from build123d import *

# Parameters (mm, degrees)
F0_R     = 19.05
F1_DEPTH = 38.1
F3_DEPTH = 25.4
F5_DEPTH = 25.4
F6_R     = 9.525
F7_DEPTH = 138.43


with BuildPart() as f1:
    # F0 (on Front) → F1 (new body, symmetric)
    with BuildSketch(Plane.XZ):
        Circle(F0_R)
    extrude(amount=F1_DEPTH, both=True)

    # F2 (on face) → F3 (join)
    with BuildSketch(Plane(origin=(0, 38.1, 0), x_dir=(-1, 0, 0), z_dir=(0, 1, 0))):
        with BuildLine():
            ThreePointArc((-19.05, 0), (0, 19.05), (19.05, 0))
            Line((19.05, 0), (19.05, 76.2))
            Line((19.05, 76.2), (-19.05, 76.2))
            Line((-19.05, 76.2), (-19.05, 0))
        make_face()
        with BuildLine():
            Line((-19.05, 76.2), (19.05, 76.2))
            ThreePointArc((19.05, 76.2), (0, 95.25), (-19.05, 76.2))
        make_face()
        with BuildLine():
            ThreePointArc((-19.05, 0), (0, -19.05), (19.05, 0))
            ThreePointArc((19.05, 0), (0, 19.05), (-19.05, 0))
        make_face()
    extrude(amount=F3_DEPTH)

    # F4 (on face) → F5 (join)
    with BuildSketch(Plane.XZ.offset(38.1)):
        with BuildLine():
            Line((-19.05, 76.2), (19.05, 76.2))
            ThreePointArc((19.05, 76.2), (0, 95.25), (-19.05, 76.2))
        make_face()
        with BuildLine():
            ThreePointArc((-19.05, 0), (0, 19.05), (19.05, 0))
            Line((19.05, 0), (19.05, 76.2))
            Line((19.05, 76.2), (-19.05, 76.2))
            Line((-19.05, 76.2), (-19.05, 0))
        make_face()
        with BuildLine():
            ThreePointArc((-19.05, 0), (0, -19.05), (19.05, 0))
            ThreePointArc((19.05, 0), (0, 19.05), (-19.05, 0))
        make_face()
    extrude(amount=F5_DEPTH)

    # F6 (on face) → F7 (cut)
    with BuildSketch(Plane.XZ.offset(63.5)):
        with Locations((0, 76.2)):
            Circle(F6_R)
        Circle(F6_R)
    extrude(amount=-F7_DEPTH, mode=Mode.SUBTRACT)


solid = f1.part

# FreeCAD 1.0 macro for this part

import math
import FreeCAD as App
import Part
import Sketcher
from FreeCAD import Vector
Q = App.Units.Quantity

doc = App.newDocument("Part")
body = doc.addObject("PartDesign::Body", "Body")

# Sketch on XZ plane
sketch1 = doc.addObject("Sketcher::SketchObject", "Sketch")
body.addObject(sketch1)
sketch1.AttachmentSupport = (doc.XZ_Plane, [""])
sketch1.MapMode = "FlatFace"
sketch1.addGeometry(Part.Circle(Vector(0, 0, 0), Vector(0, 0, 1), 19), False)
sketch1.addConstraint([
    Sketcher.Constraint("Coincident", 0, 3, -1, 1),
    Sketcher.Constraint("Diameter", 0, Q("1.5 in")),
])
pad1 = doc.addObject("PartDesign::Pad", "Pad")
body.addObject(pad1)
pad1.Profile = sketch1
pad1.Length = Q("3 in")
pad1.Midplane = True

# Sketch on XZ plane
sketch2 = doc.addObject("Sketcher::SketchObject", "Sketch001")
body.addObject(sketch2)
sketch2.AttachmentSupport = (doc.XZ_Plane, [""])
sketch2.MapMode = "FlatFace"
sketch2.AttachmentOffset = App.Placement(Vector(0, 0, -1.5 * 25.4), App.Rotation())
sketch2.addGeometry([
    Part.LineSegment(Vector(-19, 0, 0), Vector(-19, 76, 0)),
    Part.ArcOfCircle(Part.Circle(Vector(0, 76, 0), Vector(0, 0, 1), 19), math.radians(0), math.radians(180)),
    Part.LineSegment(Vector(19, 76, 0), Vector(19, 0, 0)),
    Part.ArcOfCircle(Part.Circle(Vector(0, 0, 0), Vector(0, 0, 1), 19), math.radians(180), math.radians(360)),
], False)
sketch2.addConstraint([
    Sketcher.Constraint("Tangent", 0, 2, 1, 2),
    Sketcher.Constraint("Tangent", 1, 1, 2, 1),
    Sketcher.Constraint("Tangent", 2, 2, 3, 2),
    Sketcher.Constraint("Tangent", 3, 1, 0, 1),
    Sketcher.Constraint("Vertical", 0),
    Sketcher.Constraint("Vertical", 2),
    Sketcher.Constraint("Coincident", 3, 3, -1, 1),
    Sketcher.Constraint("DistanceY", 0, 1, 0, 2, Q("3 in")),
    Sketcher.Constraint("Radius", 1, Q("0.75 in")),
])
pad2 = doc.addObject("PartDesign::Pad", "Pad001")
body.addObject(pad2)
pad2.Profile = sketch2
pad2.Length = Q("1 in")
pad2.Reversed = True

# Sketch on XZ plane
sketch3 = doc.addObject("Sketcher::SketchObject", "Sketch002")
body.addObject(sketch3)
sketch3.AttachmentSupport = (doc.XZ_Plane, [""])
sketch3.MapMode = "FlatFace"
sketch3.AttachmentOffset = App.Placement(Vector(0, 0, 1.5 * 25.4), App.Rotation())
sketch3.addGeometry([
    Part.ArcOfCircle(Part.Circle(Vector(0, 76, 0), Vector(0, 0, 1), 19), math.radians(0), math.radians(180)),
    Part.LineSegment(Vector(-19, 76, 0), Vector(-19, 0, 0)),
    Part.ArcOfCircle(Part.Circle(Vector(0, 0, 0), Vector(0, 0, 1), 19), math.radians(180), math.radians(360)),
    Part.LineSegment(Vector(19, 0, 0), Vector(19, 76, 0)),
], False)
sketch3.addConstraint([
    Sketcher.Constraint("Tangent", 0, 2, 1, 1),
    Sketcher.Constraint("Tangent", 1, 2, 2, 1),
    Sketcher.Constraint("Tangent", 2, 2, 3, 1),
    Sketcher.Constraint("Tangent", 3, 2, 0, 1),
    Sketcher.Constraint("Vertical", 1),
    Sketcher.Constraint("Vertical", 3),
    Sketcher.Constraint("Coincident", 2, 3, -1, 1),
    Sketcher.Constraint("DistanceY", 1, 2, 1, 1, Q("3 in")),
    Sketcher.Constraint("Radius", 0, Q("0.75 in")),
])
pad3 = doc.addObject("PartDesign::Pad", "Pad002")
body.addObject(pad3)
pad3.Profile = sketch3
pad3.Length = Q("1 in")

# Sketch on XZ plane
sketch4 = doc.addObject("Sketcher::SketchObject", "Sketch003")
body.addObject(sketch4)
sketch4.AttachmentSupport = (doc.XZ_Plane, [""])
sketch4.MapMode = "FlatFace"
sketch4.AttachmentOffset = App.Placement(Vector(0, 0, 2.5 * 25.4), App.Rotation())
sketch4.addGeometry([
    Part.Circle(Vector(0, 76, 0), Vector(0, 0, 1), 10),
    Part.Circle(Vector(0, 0, 0), Vector(0, 0, 1), 10),
], False)
sketch4.addConstraint([
    Sketcher.Constraint("Coincident", 1, 3, -1, 1),
    Sketcher.Constraint("Equal", 0, 1),
    Sketcher.Constraint("PointOnObject", 0, 3, -2),
    Sketcher.Constraint("Diameter", 0, Q("0.75 in")),
    Sketcher.Constraint("DistanceY", -1, 1, 0, 3, Q("3 in")),
])
pocket1 = doc.addObject("PartDesign::Pocket", "Pocket")
body.addObject(pocket1)
pocket1.Profile = sketch4
pocket1.Length = Q("5.45 in")

doc.recompute()
